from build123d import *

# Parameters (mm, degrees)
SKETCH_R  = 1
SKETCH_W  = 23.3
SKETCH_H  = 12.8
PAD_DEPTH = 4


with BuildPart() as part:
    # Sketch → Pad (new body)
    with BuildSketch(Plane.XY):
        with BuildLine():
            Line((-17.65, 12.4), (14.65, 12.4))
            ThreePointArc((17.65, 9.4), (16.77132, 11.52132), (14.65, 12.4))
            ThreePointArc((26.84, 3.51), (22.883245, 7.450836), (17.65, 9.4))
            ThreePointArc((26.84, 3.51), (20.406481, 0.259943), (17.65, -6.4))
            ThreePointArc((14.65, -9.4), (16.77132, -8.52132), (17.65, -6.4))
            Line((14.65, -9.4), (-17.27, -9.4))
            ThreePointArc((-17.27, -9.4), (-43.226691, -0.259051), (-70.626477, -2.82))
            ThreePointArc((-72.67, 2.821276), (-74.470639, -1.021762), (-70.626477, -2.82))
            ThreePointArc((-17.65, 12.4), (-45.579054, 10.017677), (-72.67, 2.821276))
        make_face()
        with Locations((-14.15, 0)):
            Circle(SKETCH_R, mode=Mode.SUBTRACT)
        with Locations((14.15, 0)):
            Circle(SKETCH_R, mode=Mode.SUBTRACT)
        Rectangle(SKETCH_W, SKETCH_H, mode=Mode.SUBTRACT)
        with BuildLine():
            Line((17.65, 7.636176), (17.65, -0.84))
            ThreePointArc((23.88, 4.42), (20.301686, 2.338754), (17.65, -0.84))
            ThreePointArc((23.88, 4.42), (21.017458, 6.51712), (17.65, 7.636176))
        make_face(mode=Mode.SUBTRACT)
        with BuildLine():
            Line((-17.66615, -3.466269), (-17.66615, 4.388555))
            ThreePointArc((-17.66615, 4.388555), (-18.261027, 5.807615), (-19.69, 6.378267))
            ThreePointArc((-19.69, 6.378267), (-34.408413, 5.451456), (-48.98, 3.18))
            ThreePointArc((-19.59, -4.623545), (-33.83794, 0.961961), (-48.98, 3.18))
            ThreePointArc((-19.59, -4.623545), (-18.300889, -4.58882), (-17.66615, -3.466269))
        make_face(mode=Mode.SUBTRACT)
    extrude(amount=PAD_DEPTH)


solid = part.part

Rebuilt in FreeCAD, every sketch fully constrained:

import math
import FreeCAD as App
import Part
import Sketcher

V = App.Vector
Q = App.Units.Quantity

doc = App.newDocument("Part")
params = doc.addObject("Spreadsheet::Sheet", "Params")
for row, (alias, value) in enumerate([
    ("sketch1_diameter", "2 mm"),
    ("sketch1_radius", "3 mm"),
    ("sketch1_radius2", "10.36 mm"),
    ("sketch1_radius3", "1.310001 mm"),
    ("sketch1_radius4", "1.99 mm"),
    ("pad1_length", "4 mm"),
], start=1):
    params.set(f"A{row}", alias)
    params.set(f"B{row}", "=" + value)
    params.setAlias(f"B{row}", alias)

body = doc.addObject("PartDesign::Body", "Body")

# Sketch on XY plane
sketch1 = body.newObject("Sketcher::SketchObject", "Sketch")
sketch1.AttachmentSupport = (doc.getObject("XY_Plane"), [""])
sketch1.MapMode = "FlatFace"
sketch1.addGeometry(Part.LineSegment(V(14.65, 12.4, 0), V(-17.65, 12.4, 0)), False)
sketch1.addGeometry(Part.ArcOfCircle(Part.Circle(V(-18.000766, -148.391461, 0), V(0, 0, 1), 160.791844), math.radians(89.87501), math.radians(109.876877)), False)
sketch1.addGeometry(Part.ArcOfCircle(Part.Circle(V(-71.65, 0, 0), V(0, 0, 1), 3), math.radians(109.876866), math.radians(289.948448)), False)
sketch1.addGeometry(Part.ArcOfCircle(Part.Circle(V(-51.088077, -64.006147, 0), V(0, 0, 1), 64.230006), math.radians(58.229695), math.radians(107.709696)), False)
sketch1.addGeometry(Part.LineSegment(V(-17.27, -9.4, 0), V(14.65, -9.4, 0)), False)
sketch1.addGeometry(Part.ArcOfCircle(Part.Circle(V(14.649999, -6.399999, 0), V(0, 0, 1), 3.000001), math.radians(-89.999978), math.radians(-0.000022)), False)
sketch1.addGeometry(Part.ArcOfCircle(Part.Circle(V(28.002862, -6.784531, 0), V(0, 0, 1), 10.36), math.radians(96.444765), math.radians(177.872872)), False)
sketch1.addGeometry(Part.ArcOfCircle(Part.Circle(V(15.769692, -3.648239, 0), V(0, 0, 1), 13.183023), math.radians(32.887359), math.radians(81.799881)), False)
sketch1.addGeometry(Part.ArcOfCircle(Part.Circle(V(14.649999, 9.399999, 0), V(0, 0, 1), 3.000001), math.radians(0.000022), math.radians(89.999978)), False)
sketch1.addGeometry(Part.Circle(V(14.15, 0, 0), V(0, 0, 1), 1), False)
sketch1.addGeometry(Part.LineSegment(V(-11.65, -6.4, 0), V(-11.65, 6.4, 0)), False)
sketch1.addGeometry(Part.LineSegment(V(-11.65, 6.4, 0), V(11.65, 6.4, 0)), False)
sketch1.addGeometry(Part.LineSegment(V(11.65, 6.4, 0), V(11.65, -6.4, 0)), False)
sketch1.addGeometry(Part.LineSegment(V(11.65, -6.4, 0), V(-11.65, -6.4, 0)), False)
sketch1.addGeometry(Part.Circle(V(-14.15, 0, 0), V(0, 0, 1), 1), False)
sketch1.addGeometry(Part.ArcOfCircle(Part.Circle(V(15.769689, -3.648244, 0), V(0, 0, 1), 11.440005), math.radians(44.851022), math.radians(80.539781)), False)
sketch1.addGeometry(Part.ArcOfCircle(Part.Circle(V(27.997935, -6.776766, 0), V(0, 0, 1), 11.930002), math.radians(110.192463), math.radians(150.156461)), False)
sketch1.addGeometry(Part.LineSegment(V(17.65, -0.84, 0), V(17.65, 7.636176, 0)), False)
sketch1.addGeometry(Part.ArcOfCircle(Part.Circle(V(-18.976151, -3.466268, 0), V(0, 0, 1), 1.310001), math.radians(-117.942624), math.radians(-0.00005)), False)
sketch1.addGeometry(Part.ArcOfCircle(Part.Circle(V(-51.08808, -64.006153, 0), V(0, 0, 1), 67.219217), math.radians(62.057358), math.radians(88.202837)), False)
sketch1.addGeometry(Part.ArcOfCircle(Part.Circle(V(-16.954983, -154.388533, 0), V(0, 0, 1), 160.790063), math.radians(90.97464), math.radians(101.488594)), False)
sketch1.addGeometry(Part.ArcOfCircle(Part.Circle(V(-19.65615, 4.388555, 0), V(0, 0, 1), 1.99), math.radians(0.000007), math.radians(90.974646)), False)
sketch1.addGeometry(Part.LineSegment(V(-17.66615, 4.388555, 0), V(-17.66615, -3.466269, 0)), False)
sketch1.addConstraint(Sketcher.Constraint("Coincident", 0, 2, 1, 1))
sketch1.addConstraint(Sketcher.Constraint("Tangent", 1, 2, 2, 1))
sketch1.addConstraint(Sketcher.Constraint("Coincident", 2, 2, 3, 2))
sketch1.addConstraint(Sketcher.Constraint("Coincident", 3, 1, 4, 1))
sketch1.addConstraint(Sketcher.Constraint("Tangent", 4, 2, 5, 1))
sketch1.addConstraint(Sketcher.Constraint("Coincident", 5, 2, 6, 2))
sketch1.addConstraint(Sketcher.Constraint("Coincident", 6, 1, 7, 1))
sketch1.addConstraint(Sketcher.Constraint("Coincident", 7, 2, 8, 1))
sketch1.addConstraint(Sketcher.Constraint("Tangent", 8, 2, 0, 1))
sketch1.addConstraint(Sketcher.Constraint("Coincident", 10, 2, 11, 1))
sketch1.addConstraint(Sketcher.Constraint("Coincident", 11, 2, 12, 1))
sketch1.addConstraint(Sketcher.Constraint("Coincident", 12, 2, 13, 1))
sketch1.addConstraint(Sketcher.Constraint("Coincident", 13, 2, 10, 1))
sketch1.addConstraint(Sketcher.Constraint("Coincident", 15, 1, 16, 1))
sketch1.addConstraint(Sketcher.Constraint("Coincident", 16, 2, 17, 1))
sketch1.addConstraint(Sketcher.Constraint("Coincident", 17, 2, 15, 2))
sketch1.addConstraint(Sketcher.Constraint("Tangent", 18, 1, 19, 1))
sketch1.addConstraint(Sketcher.Constraint("Coincident", 19, 2, 20, 2))
sketch1.addConstraint(Sketcher.Constraint("Tangent", 20, 1, 21, 2))
sketch1.addConstraint(Sketcher.Constraint("Tangent", 21, 1, 22, 1))
sketch1.addConstraint(Sketcher.Constraint("Tangent", 22, 2, 18, 2))
sketch1.addConstraint(Sketcher.Constraint("Horizontal", 0))
sketch1.addConstraint(Sketcher.Constraint("Horizontal", 4))
sketch1.addConstraint(Sketcher.Constraint("Vertical", 10))
sketch1.addConstraint(Sketcher.Constraint("Horizontal", 11))
sketch1.addConstraint(Sketcher.Constraint("Vertical", 12))
sketch1.addConstraint(Sketcher.Constraint("Horizontal", 13))
sketch1.addConstraint(Sketcher.Constraint("Vertical", 17))
sketch1.addConstraint(Sketcher.Constraint("Vertical", 22))
sketch1.addConstraint(Sketcher.Constraint("Coincident", 15, 3, 7, 3))
sketch1.addConstraint(Sketcher.Constraint("Coincident", 19, 3, 3, 3))
sketch1.addConstraint(Sketcher.Constraint("Equal", 2, 5))
sketch1.addConstraint(Sketcher.Constraint("Equal", 5, 8))
sketch1.addConstraint(Sketcher.Constraint("Equal", 9, 14))
sketch1.addConstraint(Sketcher.Constraint("Symmetric", 9, 3, 14, 3, -1, 1))
sketch1.addConstraint(Sketcher.Constraint("Symmetric", 10, 2, 12, 2, -1, 1))
sketch1.addConstraint(Sketcher.Constraint("PointOnObject", 2, 3, -1))
sketch1.addConstraint(Sketcher.Constraint("PointOnObject", 9, 3, -1))
sketch1.addConstraint(Sketcher.Constraint("Horizontal", 8, 3, 7, 2))
sketch1.addConstraint(Sketcher.Constraint("Horizontal", 5, 2, 12, 2))
sketch1.addConstraint(Sketcher.Constraint("Vertical", 5, 3, 8, 3))
sketch1.addConstraint(Sketcher.Constraint("Vertical", 7, 2, 16, 2))
sketch1.addConstraint(Sketcher.Constraint("Diameter", 9, Q("2 mm")))
sketch1.addConstraint(Sketcher.Constraint("Radius", 2, Q("3 mm")))
sketch1.addConstraint(Sketcher.Constraint("Radius", 6, Q("10.36 mm")))
sketch1.addConstraint(Sketcher.Constraint("Radius", 18, Q("1.310001 mm")))
sketch1.addConstraint(Sketcher.Constraint("Radius", 21, Q("1.99 mm")))
sketch1.addConstraint(Sketcher.Constraint("DistanceX", 0, 2, 0, 1, Q("32.3 mm")))
sketch1.addConstraint(Sketcher.Constraint("DistanceX", 11, 1, 11, 2, Q("23.3 mm")))
sketch1.addConstraint(Sketcher.Constraint("DistanceY", 10, 1, 10, 2, Q("12.8 mm")))
sketch1.addConstraint(Sketcher.Constraint("DistanceY", 4, 2, 5, 2, Q("3 mm")))
sketch1.addConstraint(Sketcher.Constraint("DistanceX", 0, 2, 10, 2, Q("6 mm")))
sketch1.addConstraint(Sketcher.Constraint("DistanceY", 10, 2, 0, 2, Q("6 mm")))
sketch1.addConstraint(Sketcher.Constraint("DistanceY", 2, 2, 19, 2, Q("6 mm")))
sketch1.addConstraint(Sketcher.Constraint("DistanceX", 4, 1, 4, 2, Q("31.92 mm")))
sketch1.addConstraint(Sketcher.Constraint("DistanceX", 2, 3, 5, 3, Q("86.299999 mm")))
sketch1.addConstraint(Sketcher.Constraint("DistanceX", 9, 3, 5, 3, Q("0.499999 mm")))
sketch1.addConstraint(Sketcher.Constraint("DistanceY", 2, 2, -1, 1, Q("2.82 mm")))
sketch1.addConstraint(Sketcher.Constraint("DistanceX", -1, 1, 6, 1, Q("26.84 mm")))
sketch1.addConstraint(Sketcher.Constraint("DistanceY", -1, 1, 6, 1, Q("3.51 mm")))
sketch1.addConstraint(Sketcher.Constraint("DistanceX", -1, 1, 15, 1, Q("23.88 mm")))
sketch1.addConstraint(Sketcher.Constraint("DistanceY", -1, 1, 15, 1, Q("4.42 mm")))
sketch1.addConstraint(Sketcher.Constraint("DistanceY", 16, 2, -1, 1, Q("0.84 mm")))
sketch1.addConstraint(Sketcher.Constraint("DistanceX", 18, 1, -1, 1, Q("19.59 mm")))
sketch1.addConstraint(Sketcher.Constraint("DistanceX", 19, 2, -1, 1, Q("48.98 mm")))
sketch1.addConstraint(Sketcher.Constraint("Radius", 1, Q("160.791844 mm")))
sketch1.addConstraint(Sketcher.Constraint("Radius", 3, Q("64.230006 mm")))
sketch1.addConstraint(Sketcher.Constraint("Radius", 7, Q("13.183023 mm")))
sketch1.addConstraint(Sketcher.Constraint("Radius", 16, Q("11.930002 mm")))
sketch1.addConstraint(Sketcher.Constraint("Radius", 20, Q("160.790063 mm")))
sketch1.addConstraint(Sketcher.Constraint("DistanceY", 18, 1, 21, 3, Q("9.0121 mm")))
sketch1.setExpression("Constraints[42]", "Params.sketch1_diameter")
sketch1.setExpression("Constraints[43]", "Params.sketch1_radius")
sketch1.setExpression("Constraints[44]", "Params.sketch1_radius2")
sketch1.setExpression("Constraints[45]", "Params.sketch1_radius3")
sketch1.setExpression("Constraints[46]", "Params.sketch1_radius4")
pad1 = body.newObject("PartDesign::Pad", "Pad")
pad1.Profile = sketch1
pad1.setExpression("Length", "Params.pad1_length")

doc.recompute()
